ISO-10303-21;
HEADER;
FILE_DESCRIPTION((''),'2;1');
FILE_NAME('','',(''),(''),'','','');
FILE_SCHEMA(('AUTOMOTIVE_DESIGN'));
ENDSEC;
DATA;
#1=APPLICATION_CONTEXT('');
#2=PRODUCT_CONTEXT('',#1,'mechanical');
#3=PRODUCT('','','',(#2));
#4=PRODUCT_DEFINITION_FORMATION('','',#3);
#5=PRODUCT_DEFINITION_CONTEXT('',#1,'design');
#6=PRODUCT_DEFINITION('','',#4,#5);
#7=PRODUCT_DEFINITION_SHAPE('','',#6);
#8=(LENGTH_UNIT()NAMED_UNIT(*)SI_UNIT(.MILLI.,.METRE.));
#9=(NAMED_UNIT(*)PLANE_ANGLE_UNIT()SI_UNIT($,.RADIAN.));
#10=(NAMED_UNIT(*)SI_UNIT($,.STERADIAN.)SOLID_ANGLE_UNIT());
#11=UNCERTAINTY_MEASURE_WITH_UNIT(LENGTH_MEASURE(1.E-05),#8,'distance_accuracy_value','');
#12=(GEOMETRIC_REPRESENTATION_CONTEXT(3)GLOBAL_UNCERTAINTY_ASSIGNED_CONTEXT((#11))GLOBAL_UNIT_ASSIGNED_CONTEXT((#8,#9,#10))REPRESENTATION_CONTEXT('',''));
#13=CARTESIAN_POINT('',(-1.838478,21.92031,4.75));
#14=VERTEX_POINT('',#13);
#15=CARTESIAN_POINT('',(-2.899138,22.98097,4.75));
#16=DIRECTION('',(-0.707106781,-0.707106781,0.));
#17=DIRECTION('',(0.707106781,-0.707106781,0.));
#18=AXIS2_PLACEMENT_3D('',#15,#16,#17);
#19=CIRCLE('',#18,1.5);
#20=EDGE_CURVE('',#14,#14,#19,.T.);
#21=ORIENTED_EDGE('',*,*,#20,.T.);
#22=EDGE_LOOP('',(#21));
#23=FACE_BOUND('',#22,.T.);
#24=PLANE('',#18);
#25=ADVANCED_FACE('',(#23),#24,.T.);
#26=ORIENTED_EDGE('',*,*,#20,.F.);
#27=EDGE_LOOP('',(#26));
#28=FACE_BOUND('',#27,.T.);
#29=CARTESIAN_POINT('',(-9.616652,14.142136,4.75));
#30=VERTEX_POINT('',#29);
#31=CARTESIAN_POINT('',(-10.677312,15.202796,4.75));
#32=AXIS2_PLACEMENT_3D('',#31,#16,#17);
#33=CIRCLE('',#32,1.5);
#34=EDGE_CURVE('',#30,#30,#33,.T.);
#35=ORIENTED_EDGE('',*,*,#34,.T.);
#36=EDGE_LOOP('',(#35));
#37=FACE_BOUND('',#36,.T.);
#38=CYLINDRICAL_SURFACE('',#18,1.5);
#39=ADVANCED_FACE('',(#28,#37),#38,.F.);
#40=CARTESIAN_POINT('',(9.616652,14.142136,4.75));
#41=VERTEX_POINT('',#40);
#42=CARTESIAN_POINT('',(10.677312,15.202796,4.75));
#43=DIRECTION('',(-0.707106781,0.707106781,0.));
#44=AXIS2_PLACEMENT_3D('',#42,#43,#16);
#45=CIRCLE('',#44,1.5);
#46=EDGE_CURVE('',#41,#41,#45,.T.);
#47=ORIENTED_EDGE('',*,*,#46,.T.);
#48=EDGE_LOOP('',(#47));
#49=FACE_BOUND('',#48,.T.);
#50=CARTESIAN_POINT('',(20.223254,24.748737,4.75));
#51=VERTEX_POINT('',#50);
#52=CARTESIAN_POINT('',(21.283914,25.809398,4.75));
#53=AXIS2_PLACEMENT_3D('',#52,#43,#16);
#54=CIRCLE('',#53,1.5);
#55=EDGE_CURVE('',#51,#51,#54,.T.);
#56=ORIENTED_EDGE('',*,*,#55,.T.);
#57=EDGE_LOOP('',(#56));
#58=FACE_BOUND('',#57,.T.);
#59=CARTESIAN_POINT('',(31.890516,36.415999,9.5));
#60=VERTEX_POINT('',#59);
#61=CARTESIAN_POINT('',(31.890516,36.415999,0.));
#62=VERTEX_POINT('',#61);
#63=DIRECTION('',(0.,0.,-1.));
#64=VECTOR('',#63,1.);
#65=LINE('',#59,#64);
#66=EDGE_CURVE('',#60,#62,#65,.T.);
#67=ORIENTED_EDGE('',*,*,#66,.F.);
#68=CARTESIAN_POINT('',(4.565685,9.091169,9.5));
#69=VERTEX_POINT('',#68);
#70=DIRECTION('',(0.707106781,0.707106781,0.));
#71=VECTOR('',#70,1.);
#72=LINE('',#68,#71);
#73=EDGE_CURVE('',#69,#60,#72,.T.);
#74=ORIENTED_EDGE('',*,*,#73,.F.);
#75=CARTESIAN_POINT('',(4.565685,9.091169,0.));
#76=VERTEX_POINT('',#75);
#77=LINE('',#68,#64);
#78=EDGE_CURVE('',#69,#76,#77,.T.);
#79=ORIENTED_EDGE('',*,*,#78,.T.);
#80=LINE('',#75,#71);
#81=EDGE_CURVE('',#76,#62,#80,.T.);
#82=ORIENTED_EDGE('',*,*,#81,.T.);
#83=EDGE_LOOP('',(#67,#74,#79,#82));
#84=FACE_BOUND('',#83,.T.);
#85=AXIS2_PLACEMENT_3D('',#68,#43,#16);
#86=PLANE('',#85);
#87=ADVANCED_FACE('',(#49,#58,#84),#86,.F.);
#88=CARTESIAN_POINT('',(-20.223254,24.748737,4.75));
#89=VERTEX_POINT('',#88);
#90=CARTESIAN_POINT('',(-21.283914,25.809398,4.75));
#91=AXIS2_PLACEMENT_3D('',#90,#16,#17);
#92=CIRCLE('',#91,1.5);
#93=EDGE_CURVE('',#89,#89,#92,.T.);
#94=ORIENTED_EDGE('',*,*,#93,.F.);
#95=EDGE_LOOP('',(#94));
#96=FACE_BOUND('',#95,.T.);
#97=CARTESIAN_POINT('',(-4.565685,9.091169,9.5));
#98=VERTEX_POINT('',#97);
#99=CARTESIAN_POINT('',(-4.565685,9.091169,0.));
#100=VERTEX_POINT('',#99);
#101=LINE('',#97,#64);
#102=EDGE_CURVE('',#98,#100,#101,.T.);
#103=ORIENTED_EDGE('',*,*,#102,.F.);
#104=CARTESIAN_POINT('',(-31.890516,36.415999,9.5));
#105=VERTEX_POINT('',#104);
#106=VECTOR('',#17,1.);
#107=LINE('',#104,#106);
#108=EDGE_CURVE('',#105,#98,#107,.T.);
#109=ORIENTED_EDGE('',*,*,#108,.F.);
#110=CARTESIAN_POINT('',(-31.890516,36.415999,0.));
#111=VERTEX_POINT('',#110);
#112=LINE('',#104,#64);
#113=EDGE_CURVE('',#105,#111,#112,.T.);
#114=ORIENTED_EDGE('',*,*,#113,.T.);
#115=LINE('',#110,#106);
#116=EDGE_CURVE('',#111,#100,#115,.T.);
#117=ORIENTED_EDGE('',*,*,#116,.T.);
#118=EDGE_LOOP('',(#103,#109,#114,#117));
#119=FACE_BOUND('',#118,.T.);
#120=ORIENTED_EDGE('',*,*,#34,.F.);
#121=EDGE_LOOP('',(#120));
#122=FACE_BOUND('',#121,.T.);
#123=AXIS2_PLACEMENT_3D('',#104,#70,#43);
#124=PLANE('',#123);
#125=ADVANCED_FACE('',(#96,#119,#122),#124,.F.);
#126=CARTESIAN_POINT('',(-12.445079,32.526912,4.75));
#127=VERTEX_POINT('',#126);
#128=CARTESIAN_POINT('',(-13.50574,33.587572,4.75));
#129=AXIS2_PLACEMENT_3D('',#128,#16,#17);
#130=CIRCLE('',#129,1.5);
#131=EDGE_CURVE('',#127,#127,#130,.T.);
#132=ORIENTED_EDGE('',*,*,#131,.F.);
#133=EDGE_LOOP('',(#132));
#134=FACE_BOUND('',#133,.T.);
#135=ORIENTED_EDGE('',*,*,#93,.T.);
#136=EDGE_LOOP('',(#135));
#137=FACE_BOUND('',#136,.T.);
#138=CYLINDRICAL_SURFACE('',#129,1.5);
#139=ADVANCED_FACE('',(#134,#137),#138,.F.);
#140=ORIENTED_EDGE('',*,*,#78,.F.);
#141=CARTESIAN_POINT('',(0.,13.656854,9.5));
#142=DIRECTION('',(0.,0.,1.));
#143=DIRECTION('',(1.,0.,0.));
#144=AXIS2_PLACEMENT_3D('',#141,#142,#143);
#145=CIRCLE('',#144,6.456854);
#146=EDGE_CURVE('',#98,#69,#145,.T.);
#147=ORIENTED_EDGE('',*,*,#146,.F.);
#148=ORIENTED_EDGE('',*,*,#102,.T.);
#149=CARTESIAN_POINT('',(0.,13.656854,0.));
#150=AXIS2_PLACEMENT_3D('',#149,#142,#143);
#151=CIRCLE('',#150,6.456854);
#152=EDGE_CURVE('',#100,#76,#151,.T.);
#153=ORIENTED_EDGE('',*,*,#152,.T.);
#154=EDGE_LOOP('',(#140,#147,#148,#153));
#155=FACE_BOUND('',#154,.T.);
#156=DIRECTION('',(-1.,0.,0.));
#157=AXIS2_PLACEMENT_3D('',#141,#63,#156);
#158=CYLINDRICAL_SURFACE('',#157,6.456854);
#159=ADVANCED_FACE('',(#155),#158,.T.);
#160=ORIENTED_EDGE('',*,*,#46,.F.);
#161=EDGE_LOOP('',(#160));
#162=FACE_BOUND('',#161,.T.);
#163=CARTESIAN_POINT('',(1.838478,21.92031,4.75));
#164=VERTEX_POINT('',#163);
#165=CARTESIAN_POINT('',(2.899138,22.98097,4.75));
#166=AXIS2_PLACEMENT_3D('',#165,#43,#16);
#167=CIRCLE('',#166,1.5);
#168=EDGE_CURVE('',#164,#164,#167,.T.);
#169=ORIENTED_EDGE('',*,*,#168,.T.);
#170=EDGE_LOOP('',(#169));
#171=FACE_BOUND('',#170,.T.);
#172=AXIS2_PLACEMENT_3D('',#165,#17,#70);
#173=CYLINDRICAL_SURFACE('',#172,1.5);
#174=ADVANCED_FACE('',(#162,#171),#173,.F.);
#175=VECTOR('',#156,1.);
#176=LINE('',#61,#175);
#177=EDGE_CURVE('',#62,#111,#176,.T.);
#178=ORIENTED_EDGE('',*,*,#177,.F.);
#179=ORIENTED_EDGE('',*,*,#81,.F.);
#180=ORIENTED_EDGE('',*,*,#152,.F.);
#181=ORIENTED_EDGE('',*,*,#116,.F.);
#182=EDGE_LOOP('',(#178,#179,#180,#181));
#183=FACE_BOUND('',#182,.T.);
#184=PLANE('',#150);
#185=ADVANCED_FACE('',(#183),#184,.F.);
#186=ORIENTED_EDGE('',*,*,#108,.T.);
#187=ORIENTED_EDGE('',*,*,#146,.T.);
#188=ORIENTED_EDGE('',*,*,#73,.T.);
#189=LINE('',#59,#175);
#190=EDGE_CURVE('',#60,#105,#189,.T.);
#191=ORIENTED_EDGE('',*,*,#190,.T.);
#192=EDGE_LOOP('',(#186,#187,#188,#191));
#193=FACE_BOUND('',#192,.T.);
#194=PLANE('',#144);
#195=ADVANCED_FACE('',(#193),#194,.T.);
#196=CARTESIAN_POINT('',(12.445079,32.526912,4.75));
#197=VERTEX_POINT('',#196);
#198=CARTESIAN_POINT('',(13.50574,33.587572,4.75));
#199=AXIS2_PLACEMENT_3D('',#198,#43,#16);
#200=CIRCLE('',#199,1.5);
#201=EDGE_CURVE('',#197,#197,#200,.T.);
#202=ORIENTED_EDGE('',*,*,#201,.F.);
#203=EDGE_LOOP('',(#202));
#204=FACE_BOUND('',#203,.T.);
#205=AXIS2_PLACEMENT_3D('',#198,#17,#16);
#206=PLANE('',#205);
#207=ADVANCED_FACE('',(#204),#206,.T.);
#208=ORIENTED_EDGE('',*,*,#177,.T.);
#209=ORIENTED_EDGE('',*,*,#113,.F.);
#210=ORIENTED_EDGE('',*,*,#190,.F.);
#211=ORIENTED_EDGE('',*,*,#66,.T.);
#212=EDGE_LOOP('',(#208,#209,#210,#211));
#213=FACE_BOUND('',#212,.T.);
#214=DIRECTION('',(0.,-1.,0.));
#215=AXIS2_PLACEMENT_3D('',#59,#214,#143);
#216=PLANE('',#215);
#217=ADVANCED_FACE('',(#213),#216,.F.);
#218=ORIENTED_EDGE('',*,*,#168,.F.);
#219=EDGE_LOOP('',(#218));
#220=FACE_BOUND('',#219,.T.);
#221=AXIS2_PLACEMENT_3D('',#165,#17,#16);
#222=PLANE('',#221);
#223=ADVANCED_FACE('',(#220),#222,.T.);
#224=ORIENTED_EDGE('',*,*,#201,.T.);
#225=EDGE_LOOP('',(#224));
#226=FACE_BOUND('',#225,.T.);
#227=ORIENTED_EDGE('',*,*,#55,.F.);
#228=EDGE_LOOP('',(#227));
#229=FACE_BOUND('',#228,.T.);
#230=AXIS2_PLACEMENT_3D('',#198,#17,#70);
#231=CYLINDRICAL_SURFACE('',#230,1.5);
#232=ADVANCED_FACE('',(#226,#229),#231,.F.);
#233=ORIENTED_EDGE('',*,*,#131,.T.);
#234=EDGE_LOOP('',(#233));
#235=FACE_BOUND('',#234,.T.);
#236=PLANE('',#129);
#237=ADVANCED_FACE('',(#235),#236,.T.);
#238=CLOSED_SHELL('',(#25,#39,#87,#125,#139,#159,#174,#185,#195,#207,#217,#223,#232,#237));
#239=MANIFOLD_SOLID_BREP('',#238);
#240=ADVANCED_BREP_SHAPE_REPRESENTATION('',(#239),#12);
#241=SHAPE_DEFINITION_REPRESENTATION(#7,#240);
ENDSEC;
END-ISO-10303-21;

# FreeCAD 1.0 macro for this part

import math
import FreeCAD as App
import Part
import Sketcher
from FreeCAD import Vector
Q = App.Units.Quantity

doc = App.newDocument("Part")
params = doc.addObject("Spreadsheet::Sheet", "Params")
for row, (alias, value) in enumerate([
    ("pad1_length", "9.5 mm"),
    ("sketch2_diameter", "3 mm"),
    ("pocket1_length", "11 mm"),
], start=1):
    params.set(f"A{row}", alias)
    params.set(f"B{row}", "=" + value)
    params.setAlias(f"B{row}", alias)

body = doc.addObject("PartDesign::Body", "Body")

# Sketch on XY plane
sketch1 = doc.addObject("Sketcher::SketchObject", "Sketch")
body.addObject(sketch1)
sketch1.AttachmentSupport = (doc.XY_Plane, [""])
sketch1.MapMode = "FlatFace"
sketch1.addGeometry([
    Part.LineSegment(Vector(4.565685, 9.091169, 0), Vector(31.890516, 36.415999, 0)),
    Part.LineSegment(Vector(31.890516, 36.415999, 0), Vector(-31.890516, 36.415999, 0)),
    Part.LineSegment(Vector(-31.890516, 36.415999, 0), Vector(-4.565685, 9.091169, 0)),
    Part.ArcOfCircle(Part.Circle(Vector(0, 13.656854, 0), Vector(0, 0, 1), 6.456854), math.radians(-135), math.radians(-45)),
], False)
sketch1.addConstraint([
    Sketcher.Constraint("Coincident", 0, 2, 1, 1),
    Sketcher.Constraint("Coincident", 1, 2, 2, 1),
    Sketcher.Constraint("Tangent", 2, 2, 3, 1),
    Sketcher.Constraint("Tangent", 3, 2, 0, 1),
    Sketcher.Constraint("Horizontal", 1),
    Sketcher.Constraint("Symmetric", 2, 2, 3, 2, -2),
    Sketcher.Constraint("Perpendicular", 0, 2),
    Sketcher.Constraint("DistanceY", -1, 1, 0, 2, Q("36.415999 mm")),
    Sketcher.Constraint("Radius", 3, Q("6.456854 mm")),
    Sketcher.Constraint("DistanceX", 1, 2, 1, 1, Q("63.781032 mm")),
])
pad1 = doc.addObject("PartDesign::Pad", "Pad")
body.addObject(pad1)
pad1.Profile = sketch1
pad1.setExpression("Length", "Params.pad1_length")

# Sketch on an angled plane
sketch2 = doc.addObject("Sketcher::SketchObject", "Sketch001")
body.addObject(sketch2)
sketch2.Placement = App.Placement(Vector(2.262742, 2.262742, 0), App.Rotation(Vector(0, 0, 1), Vector(-0.707106781, 0.707106781, 0), Vector(-0.707106781, -0.707106781, 0), "ZXY"))
sketch2.addGeometry([
    Part.Circle(Vector(4.75, 33.3, 0), Vector(0, 0, 1), 1.5),
    Part.Circle(Vector(4.75, 18.3, 0), Vector(0, 0, 1), 1.5),
], False)
sketch2.addConstraint([
    Sketcher.Constraint("Equal", 0, 1),
    Sketcher.Constraint("Vertical", 0, 3, 1, 3),
    Sketcher.Constraint("Diameter", 0, Q("3 mm")),
    Sketcher.Constraint("DistanceY", 1, 3, 0, 3, Q("15 mm")),
    Sketcher.Constraint("DistanceY", -1, 1, 0, 3, Q("33.3 mm")),
    Sketcher.Constraint("DistanceX", -1, 1, 0, 3, Q("4.75 mm")),
])
sketch2.setExpression("Constraints[2]", "Params.sketch2_diameter")
pocket1 = doc.addObject("PartDesign::Pocket", "Pocket")
body.addObject(pocket1)
pocket1.Profile = sketch2
pocket1.setExpression("Length", "Params.pocket1_length")
doc.recompute()

mirrored = doc.addObject("PartDesign::Mirrored", "Mirrored")
body.addObject(mirrored)
mirrored.Originals = [pocket1]
mirrored.MirrorPlane = (doc.YZ_Plane, [""])
body.Tip = mirrored

doc.recompute()
